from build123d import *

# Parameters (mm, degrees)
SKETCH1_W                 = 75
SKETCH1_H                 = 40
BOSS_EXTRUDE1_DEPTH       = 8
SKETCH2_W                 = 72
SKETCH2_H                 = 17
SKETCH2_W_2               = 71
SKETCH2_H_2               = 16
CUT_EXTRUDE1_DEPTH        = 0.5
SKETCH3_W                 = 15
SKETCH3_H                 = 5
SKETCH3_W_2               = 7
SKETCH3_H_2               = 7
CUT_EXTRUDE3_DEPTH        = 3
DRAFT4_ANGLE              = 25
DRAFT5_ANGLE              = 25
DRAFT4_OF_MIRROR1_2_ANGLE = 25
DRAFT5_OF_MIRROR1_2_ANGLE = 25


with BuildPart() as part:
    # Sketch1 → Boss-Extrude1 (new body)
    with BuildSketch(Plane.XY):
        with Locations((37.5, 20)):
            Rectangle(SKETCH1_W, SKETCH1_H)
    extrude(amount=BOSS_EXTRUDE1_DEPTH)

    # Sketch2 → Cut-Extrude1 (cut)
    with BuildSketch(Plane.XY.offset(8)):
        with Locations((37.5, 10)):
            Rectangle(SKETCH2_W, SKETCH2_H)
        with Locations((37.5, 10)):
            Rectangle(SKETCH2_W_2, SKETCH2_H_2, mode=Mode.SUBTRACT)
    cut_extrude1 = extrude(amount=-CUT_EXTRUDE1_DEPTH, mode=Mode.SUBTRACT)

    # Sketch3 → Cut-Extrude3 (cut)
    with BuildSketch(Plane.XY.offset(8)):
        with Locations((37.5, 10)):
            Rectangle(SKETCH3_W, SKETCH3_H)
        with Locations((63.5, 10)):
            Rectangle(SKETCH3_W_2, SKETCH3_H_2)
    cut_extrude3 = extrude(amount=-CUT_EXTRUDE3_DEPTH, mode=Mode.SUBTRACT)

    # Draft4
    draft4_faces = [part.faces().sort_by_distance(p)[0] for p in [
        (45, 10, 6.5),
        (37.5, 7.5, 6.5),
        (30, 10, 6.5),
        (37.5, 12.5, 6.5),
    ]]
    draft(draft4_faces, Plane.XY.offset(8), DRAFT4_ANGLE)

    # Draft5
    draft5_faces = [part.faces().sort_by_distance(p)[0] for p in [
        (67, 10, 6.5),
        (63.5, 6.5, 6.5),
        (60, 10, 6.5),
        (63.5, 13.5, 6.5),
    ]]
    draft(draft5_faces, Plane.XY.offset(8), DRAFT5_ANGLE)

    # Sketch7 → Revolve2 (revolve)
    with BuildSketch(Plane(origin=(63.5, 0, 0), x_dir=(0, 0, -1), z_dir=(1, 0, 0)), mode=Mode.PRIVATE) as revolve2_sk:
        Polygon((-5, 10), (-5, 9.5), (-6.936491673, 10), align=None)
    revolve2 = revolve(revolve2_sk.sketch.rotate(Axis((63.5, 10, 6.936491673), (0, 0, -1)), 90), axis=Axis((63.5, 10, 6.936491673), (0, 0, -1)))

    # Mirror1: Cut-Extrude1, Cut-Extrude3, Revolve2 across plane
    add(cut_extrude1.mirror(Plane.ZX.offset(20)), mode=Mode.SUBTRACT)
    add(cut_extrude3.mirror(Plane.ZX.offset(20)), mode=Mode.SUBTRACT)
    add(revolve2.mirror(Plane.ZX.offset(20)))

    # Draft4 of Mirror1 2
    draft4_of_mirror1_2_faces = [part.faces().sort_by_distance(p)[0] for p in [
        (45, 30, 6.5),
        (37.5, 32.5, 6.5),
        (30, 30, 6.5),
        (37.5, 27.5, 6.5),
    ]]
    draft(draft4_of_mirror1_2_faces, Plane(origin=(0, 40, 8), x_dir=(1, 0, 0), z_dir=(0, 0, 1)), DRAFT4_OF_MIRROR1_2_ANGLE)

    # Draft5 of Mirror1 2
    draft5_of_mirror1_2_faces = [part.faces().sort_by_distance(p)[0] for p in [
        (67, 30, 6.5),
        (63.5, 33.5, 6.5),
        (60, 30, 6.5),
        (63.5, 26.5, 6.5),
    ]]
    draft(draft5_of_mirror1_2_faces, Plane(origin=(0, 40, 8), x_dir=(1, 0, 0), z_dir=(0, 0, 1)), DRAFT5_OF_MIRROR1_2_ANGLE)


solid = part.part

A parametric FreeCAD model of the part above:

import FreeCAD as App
import Part
import Sketcher
from FreeCAD import Vector
Q = App.Units.Quantity


def faces_at(feature, points):
    """Names of the faces that lie closest to the given points."""
    faces = feature.Shape.Faces
    near = lambda p: min(range(len(faces)), key=lambda i: faces[i].distToShape(Part.Vertex(*p))[0])
    return sorted({f"Face{near(p) + 1}" for p in points})

doc = App.newDocument("Part")
body = doc.addObject("PartDesign::Body", "Body")

# Sketch on XY plane
sketch1 = doc.addObject("Sketcher::SketchObject", "Sketch")
body.addObject(sketch1)
sketch1.AttachmentSupport = (doc.XY_Plane, [""])
sketch1.MapMode = "FlatFace"
sketch1.addGeometry(Part.LineSegment(Vector(0, 40, 0), Vector(0, 0, 0)), False)
sketch1.addGeometry(Part.LineSegment(Vector(0, 0, 0), Vector(75, 0, 0)), False)
sketch1.addGeometry(Part.LineSegment(Vector(75, 0, 0), Vector(75, 40, 0)), False)
sketch1.addGeometry(Part.LineSegment(Vector(75, 40, 0), Vector(0, 40, 0)), False)
sketch1.addConstraint(Sketcher.Constraint("Coincident", 0, 2, 1, 1))
sketch1.addConstraint(Sketcher.Constraint("Coincident", 1, 2, 2, 1))
sketch1.addConstraint(Sketcher.Constraint("Coincident", 2, 2, 3, 1))
sketch1.addConstraint(Sketcher.Constraint("Coincident", 3, 2, 0, 1))
sketch1.addConstraint(Sketcher.Constraint("Vertical", 0))
sketch1.addConstraint(Sketcher.Constraint("Horizontal", 1))
sketch1.addConstraint(Sketcher.Constraint("Vertical", 2))
sketch1.addConstraint(Sketcher.Constraint("Horizontal", 3))
sketch1.addConstraint(Sketcher.Constraint("Coincident", 0, 2, -1, 1))
sketch1.addConstraint(Sketcher.Constraint("DistanceX", 1, 1, 1, 2, Q("75 mm")))
sketch1.addConstraint(Sketcher.Constraint("DistanceY", 0, 2, 0, 1, Q("40 mm")))
pad1 = doc.addObject("PartDesign::Pad", "Pad")
body.addObject(pad1)
pad1.Profile = sketch1
pad1.Length = 8

# Sketch on XY plane
sketch2 = doc.addObject("Sketcher::SketchObject", "Sketch001")
body.addObject(sketch2)
sketch2.AttachmentSupport = (doc.XY_Plane, [""])
sketch2.MapMode = "FlatFace"
sketch2.AttachmentOffset = App.Placement(Vector(0, 0, 8), App.Rotation())
sketch2.addGeometry(Part.LineSegment(Vector(1.5, 18.5, 0), Vector(1.5, 1.5, 0)), False)
sketch2.addGeometry(Part.LineSegment(Vector(1.5, 1.5, 0), Vector(73.5, 1.5, 0)), False)
sketch2.addGeometry(Part.LineSegment(Vector(73.5, 1.5, 0), Vector(73.5, 18.5, 0)), False)
sketch2.addGeometry(Part.LineSegment(Vector(73.5, 18.5, 0), Vector(1.5, 18.5, 0)), False)
sketch2.addGeometry(Part.LineSegment(Vector(73, 2, 0), Vector(2, 2, 0)), False)
sketch2.addGeometry(Part.LineSegment(Vector(2, 2, 0), Vector(2, 18, 0)), False)
sketch2.addGeometry(Part.LineSegment(Vector(2, 18, 0), Vector(73, 18, 0)), False)
sketch2.addGeometry(Part.LineSegment(Vector(73, 18, 0), Vector(73, 2, 0)), False)
sketch2.addConstraint(Sketcher.Constraint("Coincident", 0, 2, 1, 1))
sketch2.addConstraint(Sketcher.Constraint("Coincident", 1, 2, 2, 1))
sketch2.addConstraint(Sketcher.Constraint("Coincident", 2, 2, 3, 1))
sketch2.addConstraint(Sketcher.Constraint("Coincident", 3, 2, 0, 1))
sketch2.addConstraint(Sketcher.Constraint("Coincident", 4, 2, 5, 1))
sketch2.addConstraint(Sketcher.Constraint("Coincident", 5, 2, 6, 1))
sketch2.addConstraint(Sketcher.Constraint("Coincident", 6, 2, 7, 1))
sketch2.addConstraint(Sketcher.Constraint("Coincident", 7, 2, 4, 1))
sketch2.addConstraint(Sketcher.Constraint("Vertical", 0))
sketch2.addConstraint(Sketcher.Constraint("Horizontal", 1))
sketch2.addConstraint(Sketcher.Constraint("Vertical", 2))
sketch2.addConstraint(Sketcher.Constraint("Horizontal", 3))
sketch2.addConstraint(Sketcher.Constraint("Horizontal", 4))
sketch2.addConstraint(Sketcher.Constraint("Vertical", 5))
sketch2.addConstraint(Sketcher.Constraint("Horizontal", 6))
sketch2.addConstraint(Sketcher.Constraint("Vertical", 7))
sketch2.addConstraint(Sketcher.Constraint("DistanceX", 1, 1, 1, 2, Q("72 mm")))
sketch2.addConstraint(Sketcher.Constraint("DistanceX", 4, 2, 4, 1, Q("71 mm")))
sketch2.addConstraint(Sketcher.Constraint("DistanceY", 0, 2, 0, 1, Q("17 mm")))
sketch2.addConstraint(Sketcher.Constraint("DistanceY", 5, 1, 5, 2, Q("16 mm")))
sketch2.addConstraint(Sketcher.Constraint("DistanceX", -1, 1, 4, 2, Q("2 mm")))
sketch2.addConstraint(Sketcher.Constraint("DistanceY", -1, 1, 4, 2, Q("2 mm")))
sketch2.addConstraint(Sketcher.Constraint("DistanceX", -1, 1, 0, 2, Q("1.5 mm")))
sketch2.addConstraint(Sketcher.Constraint("DistanceY", -1, 1, 0, 2, Q("1.5 mm")))
pocket1 = doc.addObject("PartDesign::Pocket", "Pocket")
body.addObject(pocket1)
pocket1.Profile = sketch2
pocket1.Length = 0.5

# Sketch on XY plane
sketch3 = doc.addObject("Sketcher::SketchObject", "Sketch002")
body.addObject(sketch3)
sketch3.AttachmentSupport = (doc.XY_Plane, [""])
sketch3.MapMode = "FlatFace"
sketch3.AttachmentOffset = App.Placement(Vector(0, 0, 8), App.Rotation())
sketch3.addGeometry(Part.LineSegment(Vector(30, 12.5, 0), Vector(30, 7.5, 0)), False)
sketch3.addGeometry(Part.LineSegment(Vector(30, 7.5, 0), Vector(45, 7.5, 0)), False)
sketch3.addGeometry(Part.LineSegment(Vector(45, 7.5, 0), Vector(45, 12.5, 0)), False)
sketch3.addGeometry(Part.LineSegment(Vector(45, 12.5, 0), Vector(30, 12.5, 0)), False)
sketch3.addGeometry(Part.LineSegment(Vector(60, 13.5, 0), Vector(60, 6.5, 0)), False)
sketch3.addGeometry(Part.LineSegment(Vector(60, 6.5, 0), Vector(67, 6.5, 0)), False)
sketch3.addGeometry(Part.LineSegment(Vector(67, 6.5, 0), Vector(67, 13.5, 0)), False)
sketch3.addGeometry(Part.LineSegment(Vector(67, 13.5, 0), Vector(60, 13.5, 0)), False)
sketch3.addConstraint(Sketcher.Constraint("Coincident", 0, 2, 1, 1))
sketch3.addConstraint(Sketcher.Constraint("Coincident", 1, 2, 2, 1))
sketch3.addConstraint(Sketcher.Constraint("Coincident", 2, 2, 3, 1))
sketch3.addConstraint(Sketcher.Constraint("Coincident", 3, 2, 0, 1))
sketch3.addConstraint(Sketcher.Constraint("Coincident", 4, 2, 5, 1))
sketch3.addConstraint(Sketcher.Constraint("Coincident", 5, 2, 6, 1))
sketch3.addConstraint(Sketcher.Constraint("Coincident", 6, 2, 7, 1))
sketch3.addConstraint(Sketcher.Constraint("Coincident", 7, 2, 4, 1))
sketch3.addConstraint(Sketcher.Constraint("Vertical", 0))
sketch3.addConstraint(Sketcher.Constraint("Horizontal", 1))
sketch3.addConstraint(Sketcher.Constraint("Vertical", 2))
sketch3.addConstraint(Sketcher.Constraint("Horizontal", 3))
sketch3.addConstraint(Sketcher.Constraint("Vertical", 4))
sketch3.addConstraint(Sketcher.Constraint("Horizontal", 5))
sketch3.addConstraint(Sketcher.Constraint("Vertical", 6))
sketch3.addConstraint(Sketcher.Constraint("Horizontal", 7))
sketch3.addConstraint(Sketcher.Constraint("Equal", 7, 4))
sketch3.addConstraint(Sketcher.Constraint("DistanceX", 1, 1, 1, 2, Q("15 mm")))
sketch3.addConstraint(Sketcher.Constraint("DistanceX", 5, 1, 5, 2, Q("7 mm")))
sketch3.addConstraint(Sketcher.Constraint("DistanceY", 0, 2, 0, 1, Q("5 mm")))
sketch3.addConstraint(Sketcher.Constraint("DistanceX", -1, 1, 0, 2, Q("30 mm")))
sketch3.addConstraint(Sketcher.Constraint("DistanceX", -1, 1, 4, 2, Q("60 mm")))
sketch3.addConstraint(Sketcher.Constraint("DistanceY", 4, 2, 1, 2, Q("1 mm")))
sketch3.addConstraint(Sketcher.Constraint("DistanceY", -1, 1, 0, 2, Q("7.5 mm")))
pocket2 = doc.addObject("PartDesign::Pocket", "Pocket001")
body.addObject(pocket2)
pocket2.Profile = sketch3
pocket2.Length = 3
doc.recompute()

datumplane = doc.addObject("PartDesign::Plane", "DatumPlane")
body.addObject(datumplane)
datumplane.AttachmentSupport = (doc.XY_Plane, [""])
datumplane.MapMode = "FlatFace"
datumplane.AttachmentOffset = App.Placement(Vector(0, 0, 8), App.Rotation())
draft = doc.addObject("PartDesign::Draft", "Draft")
body.addObject(draft)
draft.Base = (pocket2, faces_at(pocket2, [
    (45, 10, 6.5),
    (37.5, 7.5, 6.5),
    (30, 10, 6.5),
    (37.5, 12.5, 6.5),
]))
draft.NeutralPlane = (datumplane, [""])
draft.Angle = 25
draft.Reversed = False
doc.recompute()

datumplane2 = doc.addObject("PartDesign::Plane", "DatumPlane001")
body.addObject(datumplane2)
datumplane2.AttachmentSupport = (doc.XY_Plane, [""])
datumplane2.MapMode = "FlatFace"
datumplane2.AttachmentOffset = App.Placement(Vector(0, 0, 8), App.Rotation())
draft2 = doc.addObject("PartDesign::Draft", "Draft001")
body.addObject(draft2)
draft2.Base = (draft, faces_at(draft, [
    (67, 10, 6.5),
    (63.5, 6.5, 6.5),
    (60, 10, 6.5),
    (63.5, 13.5, 6.5),
]))
draft2.NeutralPlane = (datumplane2, [""])
draft2.Angle = 25
draft2.Reversed = False

# Sketch on YZ plane
sketch4 = doc.addObject("Sketcher::SketchObject", "Sketch003")
body.addObject(sketch4)
sketch4.AttachmentSupport = (doc.YZ_Plane, [""])
sketch4.MapMode = "FlatFace"
sketch4.AttachmentOffset = App.Placement(Vector(0, 0, 63.5), App.Rotation())
sketch4.addGeometry(Part.LineSegment(Vector(9.5, 5, 0), Vector(10, 5, 0)), False)
sketch4.addGeometry(Part.LineSegment(Vector(10, 5, 0), Vector(10, 6.936492, 0)), False)
sketch4.addGeometry(Part.LineSegment(Vector(10, 6.936492, 0), Vector(9.5, 5, 0)), False)
sketch4.addGeometry(Part.LineSegment(Vector(10, 6.936492, 0), Vector(10, 5, 0)), True)  # axis
sketch4.addConstraint(Sketcher.Constraint("Coincident", 0, 2, 1, 1))
sketch4.addConstraint(Sketcher.Constraint("Coincident", 1, 2, 2, 1))
sketch4.addConstraint(Sketcher.Constraint("Coincident", 2, 2, 0, 1))
sketch4.addConstraint(Sketcher.Constraint("Horizontal", 0))
sketch4.addConstraint(Sketcher.Constraint("Vertical", 1))
sketch4.addConstraint(Sketcher.Constraint("Vertical", 3))
sketch4.addConstraint(Sketcher.Constraint("Coincident", 3, 1, 1, 2))
sketch4.addConstraint(Sketcher.Constraint("Horizontal", 2, 2, 3, 2))
sketch4.addConstraint(Sketcher.Constraint("Distance", 2, Q("2 mm")))
sketch4.addConstraint(Sketcher.Constraint("DistanceX", 0, 1, 0, 2, Q("0.5 mm")))
sketch4.addConstraint(Sketcher.Constraint("DistanceX", -1, 1, 0, 2, Q("10 mm")))
sketch4.addConstraint(Sketcher.Constraint("DistanceY", -1, 1, 0, 2, Q("5 mm")))
revolution = doc.addObject("PartDesign::Revolution", "Revolution")
body.addObject(revolution)
revolution.Profile = sketch4
revolution.ReferenceAxis = (sketch4, ["Axis0"])
revolution.Angle = 360
doc.recompute()

datumplane3 = doc.addObject("PartDesign::Plane", "DatumPlane002")
body.addObject(datumplane3)
datumplane3.AttachmentSupport = (doc.XZ_Plane, [""])
datumplane3.MapMode = "FlatFace"
datumplane3.AttachmentOffset = App.Placement(Vector(0, 0, -20), App.Rotation())
mirrored = doc.addObject("PartDesign::Mirrored", "Mirrored")
body.addObject(mirrored)
mirrored.Originals = [pocket1, pocket2, revolution]
mirrored.MirrorPlane = (datumplane3, [""])
body.Tip = mirrored
doc.recompute()

datumplane4 = doc.addObject("PartDesign::Plane", "DatumPlane003")
body.addObject(datumplane4)
datumplane4.AttachmentSupport = (doc.XY_Plane, [""])
datumplane4.MapMode = "FlatFace"
datumplane4.AttachmentOffset = App.Placement(Vector(0, 0, 8), App.Rotation())
draft3 = doc.addObject("PartDesign::Draft", "Draft002")
body.addObject(draft3)
draft3.Base = (mirrored, faces_at(mirrored, [
    (45, 30, 6.5),
    (37.5, 32.5, 6.5),
    (30, 30, 6.5),
    (37.5, 27.5, 6.5),
]))
draft3.NeutralPlane = (datumplane4, [""])
draft3.Angle = 25
draft3.Reversed = False
doc.recompute()

datumplane5 = doc.addObject("PartDesign::Plane", "DatumPlane004")
body.addObject(datumplane5)
datumplane5.AttachmentSupport = (doc.XY_Plane, [""])
datumplane5.MapMode = "FlatFace"
datumplane5.AttachmentOffset = App.Placement(Vector(0, 0, 8), App.Rotation())
draft4 = doc.addObject("PartDesign::Draft", "Draft003")
body.addObject(draft4)
draft4.Base = (draft3, faces_at(draft3, [
    (67, 30, 6.5),
    (63.5, 33.5, 6.5),
    (60, 30, 6.5),
    (63.5, 26.5, 6.5),
]))
draft4.NeutralPlane = (datumplane5, [""])
draft4.Angle = 25
draft4.Reversed = False

doc.recompute()
